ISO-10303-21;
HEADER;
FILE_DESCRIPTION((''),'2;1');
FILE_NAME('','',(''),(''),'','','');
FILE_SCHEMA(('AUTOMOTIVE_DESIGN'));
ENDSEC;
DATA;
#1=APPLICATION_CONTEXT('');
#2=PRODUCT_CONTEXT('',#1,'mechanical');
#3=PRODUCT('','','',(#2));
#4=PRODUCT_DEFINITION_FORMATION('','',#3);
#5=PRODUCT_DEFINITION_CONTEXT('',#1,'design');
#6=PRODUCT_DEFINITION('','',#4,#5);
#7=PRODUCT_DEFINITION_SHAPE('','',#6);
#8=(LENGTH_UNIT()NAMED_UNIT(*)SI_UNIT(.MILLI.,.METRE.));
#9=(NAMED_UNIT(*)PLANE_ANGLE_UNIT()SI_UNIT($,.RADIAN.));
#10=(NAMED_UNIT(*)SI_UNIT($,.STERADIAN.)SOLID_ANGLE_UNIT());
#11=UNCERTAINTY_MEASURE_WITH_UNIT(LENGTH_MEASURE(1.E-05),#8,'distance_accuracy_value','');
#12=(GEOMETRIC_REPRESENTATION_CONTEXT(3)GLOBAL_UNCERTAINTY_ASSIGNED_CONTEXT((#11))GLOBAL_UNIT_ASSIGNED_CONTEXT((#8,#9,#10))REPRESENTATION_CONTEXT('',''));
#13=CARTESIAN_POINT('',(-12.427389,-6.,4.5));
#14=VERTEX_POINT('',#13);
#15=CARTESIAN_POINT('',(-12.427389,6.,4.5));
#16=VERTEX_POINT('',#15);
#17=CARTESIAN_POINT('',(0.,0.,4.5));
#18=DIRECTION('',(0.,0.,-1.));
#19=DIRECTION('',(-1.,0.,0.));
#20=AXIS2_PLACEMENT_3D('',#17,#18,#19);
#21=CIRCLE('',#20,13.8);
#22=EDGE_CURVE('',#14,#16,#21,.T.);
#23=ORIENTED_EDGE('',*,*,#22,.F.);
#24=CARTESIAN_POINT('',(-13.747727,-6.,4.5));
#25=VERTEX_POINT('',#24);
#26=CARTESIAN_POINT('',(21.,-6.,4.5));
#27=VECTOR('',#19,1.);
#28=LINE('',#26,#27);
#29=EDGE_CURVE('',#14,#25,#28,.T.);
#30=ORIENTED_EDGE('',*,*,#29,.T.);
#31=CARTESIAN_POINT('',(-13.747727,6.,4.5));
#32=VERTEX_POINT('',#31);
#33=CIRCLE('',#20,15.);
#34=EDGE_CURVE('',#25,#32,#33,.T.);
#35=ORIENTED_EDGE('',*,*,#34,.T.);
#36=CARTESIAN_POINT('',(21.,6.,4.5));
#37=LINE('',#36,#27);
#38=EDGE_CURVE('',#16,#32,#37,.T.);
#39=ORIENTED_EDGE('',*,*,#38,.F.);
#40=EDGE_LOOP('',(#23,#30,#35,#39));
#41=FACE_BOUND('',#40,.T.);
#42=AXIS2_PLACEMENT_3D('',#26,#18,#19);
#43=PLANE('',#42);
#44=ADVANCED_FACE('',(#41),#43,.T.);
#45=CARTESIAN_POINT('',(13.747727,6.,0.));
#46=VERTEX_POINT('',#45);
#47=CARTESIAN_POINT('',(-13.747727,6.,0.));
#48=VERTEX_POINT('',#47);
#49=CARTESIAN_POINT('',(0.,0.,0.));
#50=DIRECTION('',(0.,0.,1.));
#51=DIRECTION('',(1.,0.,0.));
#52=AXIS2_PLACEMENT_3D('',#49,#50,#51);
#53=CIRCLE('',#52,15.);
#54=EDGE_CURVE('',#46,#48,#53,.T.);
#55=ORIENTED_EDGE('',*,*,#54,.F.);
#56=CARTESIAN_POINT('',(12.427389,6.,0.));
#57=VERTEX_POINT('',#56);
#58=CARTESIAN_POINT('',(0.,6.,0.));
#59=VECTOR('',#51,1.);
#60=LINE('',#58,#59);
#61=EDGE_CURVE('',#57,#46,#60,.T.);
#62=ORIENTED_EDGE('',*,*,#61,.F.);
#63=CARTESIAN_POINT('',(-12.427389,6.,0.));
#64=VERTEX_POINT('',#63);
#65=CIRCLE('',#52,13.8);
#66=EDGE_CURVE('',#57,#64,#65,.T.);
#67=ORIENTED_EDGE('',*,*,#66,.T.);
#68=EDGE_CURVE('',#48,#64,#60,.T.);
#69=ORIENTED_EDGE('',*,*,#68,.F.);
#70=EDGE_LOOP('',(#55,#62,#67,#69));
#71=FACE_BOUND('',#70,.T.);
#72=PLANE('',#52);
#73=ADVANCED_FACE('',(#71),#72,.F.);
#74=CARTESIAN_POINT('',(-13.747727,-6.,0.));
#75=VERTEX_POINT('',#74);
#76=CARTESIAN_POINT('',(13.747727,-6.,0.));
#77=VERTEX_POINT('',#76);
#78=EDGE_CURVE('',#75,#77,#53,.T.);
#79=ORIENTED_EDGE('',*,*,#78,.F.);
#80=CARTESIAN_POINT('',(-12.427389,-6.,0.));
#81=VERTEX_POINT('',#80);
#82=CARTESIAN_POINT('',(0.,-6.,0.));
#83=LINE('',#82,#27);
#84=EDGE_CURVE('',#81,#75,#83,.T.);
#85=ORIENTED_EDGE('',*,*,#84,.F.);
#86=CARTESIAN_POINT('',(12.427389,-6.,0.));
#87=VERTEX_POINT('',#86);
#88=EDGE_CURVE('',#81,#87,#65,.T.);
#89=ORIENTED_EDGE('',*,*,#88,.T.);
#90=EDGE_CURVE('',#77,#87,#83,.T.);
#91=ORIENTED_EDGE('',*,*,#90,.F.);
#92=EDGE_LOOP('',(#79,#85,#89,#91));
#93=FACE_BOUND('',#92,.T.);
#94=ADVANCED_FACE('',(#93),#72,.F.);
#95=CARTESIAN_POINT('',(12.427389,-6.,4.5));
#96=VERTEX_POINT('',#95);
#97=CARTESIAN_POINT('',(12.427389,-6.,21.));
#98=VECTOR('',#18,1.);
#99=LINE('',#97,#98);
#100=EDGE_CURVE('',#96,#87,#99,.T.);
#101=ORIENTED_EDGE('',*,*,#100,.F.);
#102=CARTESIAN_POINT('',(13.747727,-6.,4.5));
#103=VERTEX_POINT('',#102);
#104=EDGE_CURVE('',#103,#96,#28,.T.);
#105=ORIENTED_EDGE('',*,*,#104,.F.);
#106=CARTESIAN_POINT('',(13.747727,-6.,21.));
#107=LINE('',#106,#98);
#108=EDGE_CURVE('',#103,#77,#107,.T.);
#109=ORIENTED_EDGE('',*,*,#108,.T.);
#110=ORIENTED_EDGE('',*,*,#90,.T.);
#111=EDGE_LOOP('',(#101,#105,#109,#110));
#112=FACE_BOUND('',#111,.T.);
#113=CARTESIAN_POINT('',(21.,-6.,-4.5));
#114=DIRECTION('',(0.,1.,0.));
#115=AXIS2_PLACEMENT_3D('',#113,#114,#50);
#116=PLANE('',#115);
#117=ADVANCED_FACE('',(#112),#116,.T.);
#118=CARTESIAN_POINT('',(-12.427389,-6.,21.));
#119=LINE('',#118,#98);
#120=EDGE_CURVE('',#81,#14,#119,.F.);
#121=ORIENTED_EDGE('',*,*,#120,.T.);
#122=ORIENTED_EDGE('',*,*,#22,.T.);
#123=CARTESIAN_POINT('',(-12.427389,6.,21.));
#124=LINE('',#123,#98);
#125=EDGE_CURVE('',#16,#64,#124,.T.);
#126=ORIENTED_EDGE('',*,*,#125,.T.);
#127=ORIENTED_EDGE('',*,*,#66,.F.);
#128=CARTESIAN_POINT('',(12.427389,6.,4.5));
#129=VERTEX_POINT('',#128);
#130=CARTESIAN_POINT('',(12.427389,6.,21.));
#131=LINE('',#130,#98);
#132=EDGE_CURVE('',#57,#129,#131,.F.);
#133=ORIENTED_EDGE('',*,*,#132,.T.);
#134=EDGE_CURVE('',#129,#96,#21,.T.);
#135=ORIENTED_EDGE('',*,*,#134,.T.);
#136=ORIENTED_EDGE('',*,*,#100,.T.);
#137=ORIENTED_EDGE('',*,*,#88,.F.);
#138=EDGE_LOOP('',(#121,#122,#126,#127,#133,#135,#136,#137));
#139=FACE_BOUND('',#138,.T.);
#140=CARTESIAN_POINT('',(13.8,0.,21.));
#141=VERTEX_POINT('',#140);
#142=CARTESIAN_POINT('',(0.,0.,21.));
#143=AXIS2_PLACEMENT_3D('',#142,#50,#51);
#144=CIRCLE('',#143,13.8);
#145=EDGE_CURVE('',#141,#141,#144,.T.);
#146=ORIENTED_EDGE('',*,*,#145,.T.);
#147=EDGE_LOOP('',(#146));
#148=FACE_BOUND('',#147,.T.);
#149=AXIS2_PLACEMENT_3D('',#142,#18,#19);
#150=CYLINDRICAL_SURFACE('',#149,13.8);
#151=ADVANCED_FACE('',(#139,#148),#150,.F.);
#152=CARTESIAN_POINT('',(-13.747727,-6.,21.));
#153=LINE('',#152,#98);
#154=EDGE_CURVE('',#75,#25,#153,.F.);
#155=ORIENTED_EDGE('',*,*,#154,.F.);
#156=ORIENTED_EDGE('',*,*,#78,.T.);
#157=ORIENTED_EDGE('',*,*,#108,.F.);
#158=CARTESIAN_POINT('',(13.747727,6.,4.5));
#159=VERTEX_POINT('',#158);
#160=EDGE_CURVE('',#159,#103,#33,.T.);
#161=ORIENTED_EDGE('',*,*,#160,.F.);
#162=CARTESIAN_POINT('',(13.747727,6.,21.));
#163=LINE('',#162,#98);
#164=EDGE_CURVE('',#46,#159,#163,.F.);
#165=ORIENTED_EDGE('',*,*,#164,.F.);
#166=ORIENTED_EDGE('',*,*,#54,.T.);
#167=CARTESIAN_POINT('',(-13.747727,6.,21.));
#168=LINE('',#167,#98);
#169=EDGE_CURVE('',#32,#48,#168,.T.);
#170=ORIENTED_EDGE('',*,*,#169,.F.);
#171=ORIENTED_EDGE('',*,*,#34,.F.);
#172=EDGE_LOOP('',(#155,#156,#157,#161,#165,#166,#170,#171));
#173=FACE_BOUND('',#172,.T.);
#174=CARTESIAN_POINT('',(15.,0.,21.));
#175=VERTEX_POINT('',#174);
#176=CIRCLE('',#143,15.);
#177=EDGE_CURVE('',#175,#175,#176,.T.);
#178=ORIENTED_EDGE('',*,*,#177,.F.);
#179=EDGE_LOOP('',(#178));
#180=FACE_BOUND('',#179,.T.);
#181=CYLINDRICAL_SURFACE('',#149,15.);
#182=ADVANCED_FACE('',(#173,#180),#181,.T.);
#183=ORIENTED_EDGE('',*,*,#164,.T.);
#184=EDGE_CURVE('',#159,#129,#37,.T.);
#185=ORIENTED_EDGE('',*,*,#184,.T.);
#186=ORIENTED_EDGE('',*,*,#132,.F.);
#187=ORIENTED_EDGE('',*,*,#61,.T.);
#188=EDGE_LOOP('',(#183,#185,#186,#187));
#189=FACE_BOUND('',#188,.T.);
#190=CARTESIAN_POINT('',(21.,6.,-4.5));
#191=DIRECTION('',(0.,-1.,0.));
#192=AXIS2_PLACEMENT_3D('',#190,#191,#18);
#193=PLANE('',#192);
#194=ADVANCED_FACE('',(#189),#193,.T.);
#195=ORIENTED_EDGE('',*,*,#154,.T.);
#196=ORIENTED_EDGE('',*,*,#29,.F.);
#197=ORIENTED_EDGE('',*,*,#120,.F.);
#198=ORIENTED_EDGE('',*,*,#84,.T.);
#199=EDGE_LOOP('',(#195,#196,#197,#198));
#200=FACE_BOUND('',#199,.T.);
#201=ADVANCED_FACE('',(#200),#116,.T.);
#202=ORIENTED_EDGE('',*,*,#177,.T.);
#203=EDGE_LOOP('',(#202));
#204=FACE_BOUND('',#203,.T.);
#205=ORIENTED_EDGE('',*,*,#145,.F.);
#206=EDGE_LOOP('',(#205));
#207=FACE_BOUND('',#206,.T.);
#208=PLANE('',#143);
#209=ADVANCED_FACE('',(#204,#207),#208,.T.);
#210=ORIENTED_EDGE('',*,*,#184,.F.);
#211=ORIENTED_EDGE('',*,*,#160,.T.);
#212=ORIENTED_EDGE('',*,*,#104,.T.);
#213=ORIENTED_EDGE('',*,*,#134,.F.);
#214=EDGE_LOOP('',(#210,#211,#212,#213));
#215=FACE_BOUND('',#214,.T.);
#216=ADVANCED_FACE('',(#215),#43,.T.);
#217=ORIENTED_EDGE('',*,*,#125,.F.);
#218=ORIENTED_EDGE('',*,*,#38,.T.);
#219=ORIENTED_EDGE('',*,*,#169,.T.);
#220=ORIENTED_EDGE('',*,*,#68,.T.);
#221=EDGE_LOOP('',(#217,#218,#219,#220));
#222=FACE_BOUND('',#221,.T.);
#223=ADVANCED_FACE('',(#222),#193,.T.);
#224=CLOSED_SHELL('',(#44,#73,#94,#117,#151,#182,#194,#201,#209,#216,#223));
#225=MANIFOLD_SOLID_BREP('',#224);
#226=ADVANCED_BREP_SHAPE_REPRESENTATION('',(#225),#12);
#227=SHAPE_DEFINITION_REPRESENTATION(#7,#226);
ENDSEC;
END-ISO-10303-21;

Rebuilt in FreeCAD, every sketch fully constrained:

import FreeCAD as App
import Part
import Sketcher

doc = App.newDocument("Part")
body = doc.addObject("PartDesign::Body", "Body")

sketch1 = doc.addObject("Sketcher::SketchObject", "Sketch")
body.addObject(sketch1)
sketch1.AttachmentSupport = (doc.XY_Plane, [""])
sketch1.MapMode = "FlatFace"
sketch1.addGeometry([
    Part.Circle(App.Vector(0, 0, 0), App.Vector(0, 0, 1), 15),
    Part.Circle(App.Vector(0, 0, 0), App.Vector(0, 0, 1), 13.8),
], False)
sketch1.addConstraint([
    Sketcher.Constraint("Coincident", 0, 3, -1, 1),
    Sketcher.Constraint("Coincident", 1, 3, -1, 1),
    Sketcher.Constraint("Diameter", 0, 30.0),
    Sketcher.Constraint("Diameter", 1, 27.6),
])
pad1 = doc.addObject("PartDesign::Pad", "Pad")
body.addObject(pad1)
pad1.Profile = sketch1
pad1.Length = 21

sketch2 = doc.addObject("Sketcher::SketchObject", "Sketch001")
body.addObject(sketch2)
sketch2.AttachmentSupport = (doc.YZ_Plane, [""])
sketch2.MapMode = "FlatFace"
sketch2.addGeometry([
    Part.LineSegment(App.Vector(6, 4.5, 0), App.Vector(-6, 4.5, 0)),
    Part.LineSegment(App.Vector(-6, 4.5, 0), App.Vector(-6, -4.5, 0)),
    Part.LineSegment(App.Vector(-6, -4.5, 0), App.Vector(6, -4.5, 0)),
    Part.LineSegment(App.Vector(6, -4.5, 0), App.Vector(6, 4.5, 0)),
], False)
sketch2.addConstraint([
    Sketcher.Constraint("Coincident", 0, 2, 1, 1),
    Sketcher.Constraint("Coincident", 1, 2, 2, 1),
    Sketcher.Constraint("Coincident", 2, 2, 3, 1),
    Sketcher.Constraint("Coincident", 3, 2, 0, 1),
    Sketcher.Constraint("Horizontal", 0),
    Sketcher.Constraint("Vertical", 1),
    Sketcher.Constraint("Horizontal", 2),
    Sketcher.Constraint("Vertical", 3),
    Sketcher.Constraint("Symmetric", 0, 2, 2, 2, -1, 1),
    Sketcher.Constraint("DistanceX", 0, 2, 0, 1, 12.0),
    Sketcher.Constraint("DistanceY", 1, 2, 1, 1, 9.0),
])
pocket1 = doc.addObject("PartDesign::Pocket", "Pocket")
body.addObject(pocket1)
pocket1.Profile = sketch2
pocket1.Type = "ThroughAll"
pocket1.Midplane = True

doc.recompute()
